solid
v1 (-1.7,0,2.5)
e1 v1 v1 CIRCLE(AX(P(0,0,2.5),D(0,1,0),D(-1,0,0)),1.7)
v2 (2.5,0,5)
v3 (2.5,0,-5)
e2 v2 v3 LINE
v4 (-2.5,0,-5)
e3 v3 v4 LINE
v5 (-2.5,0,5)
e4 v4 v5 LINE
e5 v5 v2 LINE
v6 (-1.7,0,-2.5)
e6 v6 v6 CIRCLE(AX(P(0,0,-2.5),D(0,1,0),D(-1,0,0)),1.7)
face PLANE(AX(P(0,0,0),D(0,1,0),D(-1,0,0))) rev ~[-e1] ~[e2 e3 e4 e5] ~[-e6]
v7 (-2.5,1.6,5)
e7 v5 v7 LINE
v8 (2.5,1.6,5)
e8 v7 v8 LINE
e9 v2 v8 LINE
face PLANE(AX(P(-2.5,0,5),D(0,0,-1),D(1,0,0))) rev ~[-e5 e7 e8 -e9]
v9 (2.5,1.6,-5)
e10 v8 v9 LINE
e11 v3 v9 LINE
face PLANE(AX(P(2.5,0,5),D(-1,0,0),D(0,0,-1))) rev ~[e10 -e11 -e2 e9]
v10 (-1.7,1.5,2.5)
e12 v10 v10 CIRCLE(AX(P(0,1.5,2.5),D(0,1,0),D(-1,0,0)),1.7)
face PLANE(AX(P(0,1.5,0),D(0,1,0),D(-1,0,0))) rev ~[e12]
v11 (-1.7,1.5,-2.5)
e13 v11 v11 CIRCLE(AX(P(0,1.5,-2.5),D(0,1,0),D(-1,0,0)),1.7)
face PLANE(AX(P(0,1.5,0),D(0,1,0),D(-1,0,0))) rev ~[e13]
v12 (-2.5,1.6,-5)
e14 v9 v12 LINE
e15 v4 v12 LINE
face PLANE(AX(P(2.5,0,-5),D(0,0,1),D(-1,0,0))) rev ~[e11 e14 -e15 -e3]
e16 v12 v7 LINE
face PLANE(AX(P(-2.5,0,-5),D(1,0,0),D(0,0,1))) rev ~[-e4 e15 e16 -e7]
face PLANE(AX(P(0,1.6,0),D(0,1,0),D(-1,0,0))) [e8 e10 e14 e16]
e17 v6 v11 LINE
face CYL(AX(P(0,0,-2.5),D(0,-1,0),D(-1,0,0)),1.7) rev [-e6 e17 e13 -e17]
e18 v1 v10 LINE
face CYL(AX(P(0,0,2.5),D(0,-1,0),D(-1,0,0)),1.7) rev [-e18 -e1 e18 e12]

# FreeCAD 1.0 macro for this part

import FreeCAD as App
import Part
import Sketcher

V = App.Vector
Q = App.Units.Quantity


def add_polygon(sketch, points):
    """Adds a closed chain of lines whose ends are joined by coincident constraints."""
    first, n = sketch.GeometryCount, len(points)
    for a, b in zip(points, points[1:] + points[:1]):
        sketch.addGeometry(Part.LineSegment(App.Vector(*a, 0), App.Vector(*b, 0)), False)
    for i in range(n):
        sketch.addConstraint(Sketcher.Constraint("Coincident", first + i, 2, first + (i + 1) % n, 1))

doc = App.newDocument("Part")
body = doc.addObject("PartDesign::Body", "Body")

# Sketch on XZ plane
sketch1 = body.newObject("Sketcher::SketchObject", "Sketch")
sketch1.AttachmentSupport = (doc.getObject("XZ_Plane"), [""])
sketch1.MapMode = "FlatFace"
add_polygon(sketch1, [(-2, -5), (-2, 5), (2, 5), (2, -5)])  # lines 0-3
sketch1.addConstraint(Sketcher.Constraint("Vertical", 0))
sketch1.addConstraint(Sketcher.Constraint("Horizontal", 1))
sketch1.addConstraint(Sketcher.Constraint("Vertical", 2))
sketch1.addConstraint(Sketcher.Constraint("Horizontal", 3))
sketch1.addConstraint(Sketcher.Constraint("Symmetric", 0, 2, 2, 2, -1, 1))
sketch1.addConstraint(Sketcher.Constraint("DistanceX", 1, 1, 1, 2, Q("5 mm")))
sketch1.addConstraint(Sketcher.Constraint("DistanceY", 0, 1, 0, 2, Q("10 mm")))
pad1 = body.newObject("PartDesign::Pad", "Pad")
pad1.Profile = sketch1
pad1.Length = 1.6
pad1.Reversed = True

# Sketch on XZ plane
sketch2 = body.newObject("Sketcher::SketchObject", "Sketch001")
sketch2.AttachmentSupport = (doc.getObject("XZ_Plane"), [""])
sketch2.MapMode = "FlatFace"
sketch2.addGeometry(Part.Circle(V(0, 2.5, 0), V(0, 0, 1), 1.7), False)
sketch2.addGeometry(Part.Circle(V(0, -2.5, 0), V(0, 0, 1), 1.7), False)
sketch2.addConstraint(Sketcher.Constraint("Equal", 0, 1))
sketch2.addConstraint(Sketcher.Constraint("Symmetric", 0, 3, 1, 3, -1, 1))
sketch2.addConstraint(Sketcher.Constraint("PointOnObject", 0, 3, -2))
sketch2.addConstraint(Sketcher.Constraint("Diameter", 0, Q("3.4 mm")))
sketch2.addConstraint(Sketcher.Constraint("DistanceY", 1, 3, 0, 3, Q("5 mm")))
pocket1 = body.newObject("PartDesign::Pocket", "Pocket")
pocket1.Profile = sketch2
pocket1.Length = 1.5

# Sketch on XZ plane
sketch3 = body.newObject("Sketcher::SketchObject", "Sketch002")
sketch3.AttachmentSupport = (doc.getObject("XZ_Plane"), [""])
sketch3.MapMode = "FlatFace"
sketch3.addGeometry(Part.Circle(V(0, 2.5, 0), V(0, 0, 1), 1.7), False)
sketch3.addGeometry(Part.Circle(V(0, -2.5, 0), V(0, 0, 1), 1.7), False)
sketch3.addConstraint(Sketcher.Constraint("Equal", 0, 1))
sketch3.addConstraint(Sketcher.Constraint("Symmetric", 0, 3, 1, 3, -1, 1))
sketch3.addConstraint(Sketcher.Constraint("PointOnObject", 0, 3, -2))
sketch3.addConstraint(Sketcher.Constraint("Diameter", 0, Q("3.4 mm")))
sketch3.addConstraint(Sketcher.Constraint("DistanceY", 1, 3, 0, 3, Q("5 mm")))
pocket2 = body.newObject("PartDesign::Pocket", "Pocket001")
pocket2.Profile = sketch3
pocket2.Length = 1.5

doc.recompute()
